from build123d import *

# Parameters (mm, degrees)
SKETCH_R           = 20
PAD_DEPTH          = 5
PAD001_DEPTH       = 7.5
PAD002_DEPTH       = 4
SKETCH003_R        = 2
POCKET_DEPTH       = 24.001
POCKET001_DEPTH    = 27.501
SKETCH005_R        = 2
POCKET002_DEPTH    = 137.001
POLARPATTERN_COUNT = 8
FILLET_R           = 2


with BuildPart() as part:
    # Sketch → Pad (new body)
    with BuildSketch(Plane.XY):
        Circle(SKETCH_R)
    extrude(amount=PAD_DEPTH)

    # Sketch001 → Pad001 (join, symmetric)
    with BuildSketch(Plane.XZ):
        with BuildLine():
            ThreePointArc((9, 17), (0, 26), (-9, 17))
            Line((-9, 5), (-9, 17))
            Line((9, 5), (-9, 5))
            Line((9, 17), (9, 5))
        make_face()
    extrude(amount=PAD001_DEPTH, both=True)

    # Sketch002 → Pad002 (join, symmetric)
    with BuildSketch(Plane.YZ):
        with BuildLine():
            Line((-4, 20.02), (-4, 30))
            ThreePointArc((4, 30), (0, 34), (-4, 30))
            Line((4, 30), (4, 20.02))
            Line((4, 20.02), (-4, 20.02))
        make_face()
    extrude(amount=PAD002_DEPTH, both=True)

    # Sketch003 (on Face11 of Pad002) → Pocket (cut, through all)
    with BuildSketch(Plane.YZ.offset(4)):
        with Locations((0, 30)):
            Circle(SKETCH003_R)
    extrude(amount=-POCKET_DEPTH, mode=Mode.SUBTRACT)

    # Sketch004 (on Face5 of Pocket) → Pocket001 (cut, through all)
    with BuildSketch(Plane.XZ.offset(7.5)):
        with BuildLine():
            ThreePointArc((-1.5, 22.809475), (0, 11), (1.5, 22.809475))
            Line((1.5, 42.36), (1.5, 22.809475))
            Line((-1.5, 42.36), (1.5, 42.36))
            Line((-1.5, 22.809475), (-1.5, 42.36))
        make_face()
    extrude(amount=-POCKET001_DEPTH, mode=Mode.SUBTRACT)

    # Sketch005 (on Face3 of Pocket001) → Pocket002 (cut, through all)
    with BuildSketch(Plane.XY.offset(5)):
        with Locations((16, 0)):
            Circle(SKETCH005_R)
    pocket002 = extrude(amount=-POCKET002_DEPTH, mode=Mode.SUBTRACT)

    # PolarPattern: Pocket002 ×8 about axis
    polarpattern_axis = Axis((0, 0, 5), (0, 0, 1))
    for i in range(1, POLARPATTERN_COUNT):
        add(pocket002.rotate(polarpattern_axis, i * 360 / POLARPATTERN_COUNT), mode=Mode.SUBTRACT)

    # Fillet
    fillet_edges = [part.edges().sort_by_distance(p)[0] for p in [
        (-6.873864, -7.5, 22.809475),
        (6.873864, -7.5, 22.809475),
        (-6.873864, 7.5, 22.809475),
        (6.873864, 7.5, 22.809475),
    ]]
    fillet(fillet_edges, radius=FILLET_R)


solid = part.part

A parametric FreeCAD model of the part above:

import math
import FreeCAD as App
import Part
import Sketcher
from FreeCAD import Vector


def edges_at(feature, points):
    """Names of the edges that pass closest to the given points."""
    edges = feature.Shape.Edges
    near = lambda p: min(range(len(edges)), key=lambda i: edges[i].distToShape(Part.Vertex(*p))[0])
    return sorted({f"Edge{near(p) + 1}" for p in points})

doc = App.newDocument("Part")
body = doc.addObject("PartDesign::Body", "Body")

# Sketch on XY plane
sketch1 = body.newObject("Sketcher::SketchObject", "Sketch")
sketch1.AttachmentSupport = (doc.getObject("XY_Plane"), [""])
sketch1.MapMode = "FlatFace"
sketch1.addGeometry(Part.Circle(Vector(0, 0, 0), Vector(0, 0, 1), 20), False)
sketch1.addConstraint([
    Sketcher.Constraint("Coincident", 0, 3, -1, 1),
    Sketcher.Constraint("Diameter", 0, 40.0),
])
pad1 = body.newObject("PartDesign::Pad", "Pad")
pad1.Profile = sketch1
pad1.Length = 5

# Sketch on XZ plane
sketch2 = body.newObject("Sketcher::SketchObject", "Sketch001")
sketch2.AttachmentSupport = (doc.getObject("XZ_Plane"), [""])
sketch2.MapMode = "FlatFace"
sketch2.addGeometry([
    Part.ArcOfCircle(Part.Circle(Vector(0, 17, 0), Vector(0, 0, 1), 9), math.radians(0), math.radians(180)),
    Part.LineSegment(Vector(-9, 17, 0), Vector(-9, 5, 0)),
    Part.LineSegment(Vector(-9, 5, 0), Vector(9, 5, 0)),
    Part.LineSegment(Vector(9, 5, 0), Vector(9, 17, 0)),
], False)
sketch2.addConstraint([
    Sketcher.Constraint("Tangent", 0, 2, 1, 1),
    Sketcher.Constraint("Coincident", 1, 2, 2, 1),
    Sketcher.Constraint("Coincident", 2, 2, 3, 1),
    Sketcher.Constraint("Tangent", 3, 2, 0, 1),
    Sketcher.Constraint("Vertical", 1),
    Sketcher.Constraint("Horizontal", 2),
    Sketcher.Constraint("Vertical", 3),
    Sketcher.Constraint("PointOnObject", 0, 3, -2),
    Sketcher.Constraint("Radius", 0, 9.0),
    Sketcher.Constraint("DistanceY", 1, 2, 1, 1, 12.0),
    Sketcher.Constraint("DistanceY", -1, 1, 0, 3, 17.0),
])
pad2 = body.newObject("PartDesign::Pad", "Pad001")
pad2.Profile = sketch2
pad2.Length = 15
pad2.Midplane = True

# Sketch on YZ plane
sketch3 = body.newObject("Sketcher::SketchObject", "Sketch002")
sketch3.AttachmentSupport = (doc.getObject("YZ_Plane"), [""])
sketch3.MapMode = "FlatFace"
sketch3.addGeometry([
    Part.LineSegment(Vector(-4, 30, 0), Vector(-4, 20.02, 0)),
    Part.LineSegment(Vector(-4, 20.02, 0), Vector(4, 20.02, 0)),
    Part.LineSegment(Vector(4, 20.02, 0), Vector(4, 30, 0)),
    Part.ArcOfCircle(Part.Circle(Vector(0, 30, 0), Vector(0, 0, 1), 4), math.radians(0), math.radians(180)),
], False)
sketch3.addConstraint([
    Sketcher.Constraint("Coincident", 0, 2, 1, 1),
    Sketcher.Constraint("Coincident", 1, 2, 2, 1),
    Sketcher.Constraint("Tangent", 2, 2, 3, 1),
    Sketcher.Constraint("Tangent", 3, 2, 0, 1),
    Sketcher.Constraint("Vertical", 0),
    Sketcher.Constraint("Horizontal", 1),
    Sketcher.Constraint("Vertical", 2),
    Sketcher.Constraint("PointOnObject", 3, 3, -2),
    Sketcher.Constraint("Radius", 3, 4.0),
    Sketcher.Constraint("DistanceY", -1, 1, 3, 3, 30.0),
    Sketcher.Constraint("DistanceY", 0, 2, 0, 1, 9.98),
])
pad3 = body.newObject("PartDesign::Pad", "Pad002")
pad3.Profile = sketch3
pad3.Length = 8
pad3.Midplane = True

# Sketch on YZ plane
sketch4 = body.newObject("Sketcher::SketchObject", "Sketch003")
sketch4.AttachmentSupport = (doc.getObject("YZ_Plane"), [""])
sketch4.MapMode = "FlatFace"
sketch4.AttachmentOffset = App.Placement(Vector(0, 0, 4), App.Rotation())
sketch4.addGeometry(Part.Circle(Vector(0, 30, 0), Vector(0, 0, 1), 2), False)
sketch4.addConstraint([
    Sketcher.Constraint("PointOnObject", 0, 3, -2),
    Sketcher.Constraint("Diameter", 0, 4.0),
    Sketcher.Constraint("DistanceY", -1, 1, 0, 3, 30.0),
])
pocket1 = body.newObject("PartDesign::Pocket", "Pocket")
pocket1.Profile = sketch4
pocket1.Type = "ThroughAll"

# Sketch on XZ plane
sketch5 = body.newObject("Sketcher::SketchObject", "Sketch004")
sketch5.AttachmentSupport = (doc.getObject("XZ_Plane"), [""])
sketch5.MapMode = "FlatFace"
sketch5.AttachmentOffset = App.Placement(Vector(0, 0, 7.5), App.Rotation())
sketch5.addGeometry([
    Part.ArcOfCircle(Part.Circle(Vector(0, 17, 0), Vector(0, 0, 1), 6), math.radians(104.477512), math.radians(435.522488)),
    Part.LineSegment(Vector(1.5, 22.809475, 0), Vector(1.5, 42.36, 0)),
    Part.LineSegment(Vector(1.5, 42.36, 0), Vector(-1.5, 42.36, 0)),
    Part.LineSegment(Vector(-1.5, 42.36, 0), Vector(-1.5, 22.809475, 0)),
], False)
sketch5.addConstraint([
    Sketcher.Constraint("Coincident", 0, 2, 1, 1),
    Sketcher.Constraint("Coincident", 1, 2, 2, 1),
    Sketcher.Constraint("Coincident", 2, 2, 3, 1),
    Sketcher.Constraint("Coincident", 3, 2, 0, 1),
    Sketcher.Constraint("Vertical", 1),
    Sketcher.Constraint("Horizontal", 2),
    Sketcher.Constraint("Vertical", 3),
    Sketcher.Constraint("Symmetric", 0, 2, 3, 2, -2),
    Sketcher.Constraint("Radius", 0, 6.0),
    Sketcher.Constraint("DistanceX", 2, 2, 2, 1, 3.0),
    Sketcher.Constraint("DistanceY", -1, 1, 0, 3, 17.0),
    Sketcher.Constraint("DistanceY", -1, 1, 1, 2, 42.36),
])
pocket2 = body.newObject("PartDesign::Pocket", "Pocket001")
pocket2.Profile = sketch5
pocket2.Type = "ThroughAll"

# Sketch on XY plane
sketch6 = body.newObject("Sketcher::SketchObject", "Sketch005")
sketch6.AttachmentSupport = (doc.getObject("XY_Plane"), [""])
sketch6.MapMode = "FlatFace"
sketch6.AttachmentOffset = App.Placement(Vector(0, 0, 5), App.Rotation())
sketch6.addGeometry(Part.Circle(Vector(16, 0, 0), Vector(0, 0, 1), 2), False)
sketch6.addConstraint([
    Sketcher.Constraint("PointOnObject", 0, 3, -1),
    Sketcher.Constraint("Diameter", 0, 4.0),
    Sketcher.Constraint("DistanceX", -1, 1, 0, 3, 16.0),
])
pocket3 = body.newObject("PartDesign::Pocket", "Pocket002")
pocket3.Profile = sketch6
pocket3.Type = "ThroughAll"
doc.recompute()

polarpattern = body.newObject("PartDesign::PolarPattern", "PolarPattern")
polarpattern.Originals = [pocket3]
polarpattern.Axis = (doc.getObject("Z_Axis"), [""])
polarpattern.Angle = 360
polarpattern.Occurrences = 8
body.Tip = polarpattern
doc.recompute()

fillet = body.newObject("PartDesign::Fillet", "Fillet")
fillet.Base = (polarpattern, edges_at(polarpattern, [
    (-6.874, -7.5, 22.809),
    (6.874, -7.5, 22.809),
    (-6.874, 7.5, 22.809),
    (6.874, 7.5, 22.809),
]))
fillet.Radius = 2

doc.recompute()
